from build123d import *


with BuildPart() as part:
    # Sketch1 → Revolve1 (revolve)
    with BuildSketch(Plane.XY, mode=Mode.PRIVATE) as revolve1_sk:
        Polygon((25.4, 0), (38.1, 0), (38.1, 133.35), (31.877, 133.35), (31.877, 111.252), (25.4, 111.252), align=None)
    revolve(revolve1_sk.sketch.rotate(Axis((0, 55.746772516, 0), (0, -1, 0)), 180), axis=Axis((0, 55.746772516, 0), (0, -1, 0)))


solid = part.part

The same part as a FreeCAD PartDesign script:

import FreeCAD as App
import Part
import Sketcher
from FreeCAD import Vector
Q = App.Units.Quantity

doc = App.newDocument("Part")
body = doc.addObject("PartDesign::Body", "Body")

sketch1 = body.newObject("Sketcher::SketchObject", "Sketch")
sketch1.AttachmentSupport = (doc.getObject("XY_Plane"), [""])
sketch1.MapMode = "FlatFace"
sketch1.addGeometry(Part.LineSegment(Vector(25, 0, 0), Vector(38, 0, 0)), False)
sketch1.addGeometry(Part.LineSegment(Vector(38, 0, 0), Vector(38, 133, 0)), False)
sketch1.addGeometry(Part.LineSegment(Vector(38, 133, 0), Vector(32, 133, 0)), False)
sketch1.addGeometry(Part.LineSegment(Vector(32, 133, 0), Vector(32, 111, 0)), False)
sketch1.addGeometry(Part.LineSegment(Vector(32, 111, 0), Vector(25, 111, 0)), False)
sketch1.addGeometry(Part.LineSegment(Vector(25, 111, 0), Vector(25, 0, 0)), False)
sketch1.addConstraint(Sketcher.Constraint("Coincident", 0, 2, 1, 1))
sketch1.addConstraint(Sketcher.Constraint("Coincident", 1, 2, 2, 1))
sketch1.addConstraint(Sketcher.Constraint("Coincident", 2, 2, 3, 1))
sketch1.addConstraint(Sketcher.Constraint("Coincident", 3, 2, 4, 1))
sketch1.addConstraint(Sketcher.Constraint("Coincident", 4, 2, 5, 1))
sketch1.addConstraint(Sketcher.Constraint("Coincident", 5, 2, 0, 1))
sketch1.addConstraint(Sketcher.Constraint("Horizontal", 0))
sketch1.addConstraint(Sketcher.Constraint("Vertical", 1))
sketch1.addConstraint(Sketcher.Constraint("Horizontal", 2))
sketch1.addConstraint(Sketcher.Constraint("Vertical", 3))
sketch1.addConstraint(Sketcher.Constraint("Horizontal", 4))
sketch1.addConstraint(Sketcher.Constraint("Vertical", 5))
sketch1.addConstraint(Sketcher.Constraint("PointOnObject", 0, 2, -1))
sketch1.addConstraint(Sketcher.Constraint("DistanceX", 0, 1, 0, 2, Q("0.5 in")))
sketch1.addConstraint(Sketcher.Constraint("DistanceX", -1, 1, 4, 2, Q("1 in")))
sketch1.addConstraint(Sketcher.Constraint("DistanceY", 1, 1, 1, 2, Q("5.25 in")))
sketch1.addConstraint(Sketcher.Constraint("DistanceY", 3, 2, 3, 1, Q("0.87 in")))
sketch1.addConstraint(Sketcher.Constraint("DistanceX", 2, 2, 2, 1, Q("0.245 in")))
revolution = body.newObject("PartDesign::Revolution", "Revolution")
revolution.Profile = sketch1
revolution.ReferenceAxis = (sketch1, ["V_Axis"])
revolution.Angle = 360

doc.recompute()
